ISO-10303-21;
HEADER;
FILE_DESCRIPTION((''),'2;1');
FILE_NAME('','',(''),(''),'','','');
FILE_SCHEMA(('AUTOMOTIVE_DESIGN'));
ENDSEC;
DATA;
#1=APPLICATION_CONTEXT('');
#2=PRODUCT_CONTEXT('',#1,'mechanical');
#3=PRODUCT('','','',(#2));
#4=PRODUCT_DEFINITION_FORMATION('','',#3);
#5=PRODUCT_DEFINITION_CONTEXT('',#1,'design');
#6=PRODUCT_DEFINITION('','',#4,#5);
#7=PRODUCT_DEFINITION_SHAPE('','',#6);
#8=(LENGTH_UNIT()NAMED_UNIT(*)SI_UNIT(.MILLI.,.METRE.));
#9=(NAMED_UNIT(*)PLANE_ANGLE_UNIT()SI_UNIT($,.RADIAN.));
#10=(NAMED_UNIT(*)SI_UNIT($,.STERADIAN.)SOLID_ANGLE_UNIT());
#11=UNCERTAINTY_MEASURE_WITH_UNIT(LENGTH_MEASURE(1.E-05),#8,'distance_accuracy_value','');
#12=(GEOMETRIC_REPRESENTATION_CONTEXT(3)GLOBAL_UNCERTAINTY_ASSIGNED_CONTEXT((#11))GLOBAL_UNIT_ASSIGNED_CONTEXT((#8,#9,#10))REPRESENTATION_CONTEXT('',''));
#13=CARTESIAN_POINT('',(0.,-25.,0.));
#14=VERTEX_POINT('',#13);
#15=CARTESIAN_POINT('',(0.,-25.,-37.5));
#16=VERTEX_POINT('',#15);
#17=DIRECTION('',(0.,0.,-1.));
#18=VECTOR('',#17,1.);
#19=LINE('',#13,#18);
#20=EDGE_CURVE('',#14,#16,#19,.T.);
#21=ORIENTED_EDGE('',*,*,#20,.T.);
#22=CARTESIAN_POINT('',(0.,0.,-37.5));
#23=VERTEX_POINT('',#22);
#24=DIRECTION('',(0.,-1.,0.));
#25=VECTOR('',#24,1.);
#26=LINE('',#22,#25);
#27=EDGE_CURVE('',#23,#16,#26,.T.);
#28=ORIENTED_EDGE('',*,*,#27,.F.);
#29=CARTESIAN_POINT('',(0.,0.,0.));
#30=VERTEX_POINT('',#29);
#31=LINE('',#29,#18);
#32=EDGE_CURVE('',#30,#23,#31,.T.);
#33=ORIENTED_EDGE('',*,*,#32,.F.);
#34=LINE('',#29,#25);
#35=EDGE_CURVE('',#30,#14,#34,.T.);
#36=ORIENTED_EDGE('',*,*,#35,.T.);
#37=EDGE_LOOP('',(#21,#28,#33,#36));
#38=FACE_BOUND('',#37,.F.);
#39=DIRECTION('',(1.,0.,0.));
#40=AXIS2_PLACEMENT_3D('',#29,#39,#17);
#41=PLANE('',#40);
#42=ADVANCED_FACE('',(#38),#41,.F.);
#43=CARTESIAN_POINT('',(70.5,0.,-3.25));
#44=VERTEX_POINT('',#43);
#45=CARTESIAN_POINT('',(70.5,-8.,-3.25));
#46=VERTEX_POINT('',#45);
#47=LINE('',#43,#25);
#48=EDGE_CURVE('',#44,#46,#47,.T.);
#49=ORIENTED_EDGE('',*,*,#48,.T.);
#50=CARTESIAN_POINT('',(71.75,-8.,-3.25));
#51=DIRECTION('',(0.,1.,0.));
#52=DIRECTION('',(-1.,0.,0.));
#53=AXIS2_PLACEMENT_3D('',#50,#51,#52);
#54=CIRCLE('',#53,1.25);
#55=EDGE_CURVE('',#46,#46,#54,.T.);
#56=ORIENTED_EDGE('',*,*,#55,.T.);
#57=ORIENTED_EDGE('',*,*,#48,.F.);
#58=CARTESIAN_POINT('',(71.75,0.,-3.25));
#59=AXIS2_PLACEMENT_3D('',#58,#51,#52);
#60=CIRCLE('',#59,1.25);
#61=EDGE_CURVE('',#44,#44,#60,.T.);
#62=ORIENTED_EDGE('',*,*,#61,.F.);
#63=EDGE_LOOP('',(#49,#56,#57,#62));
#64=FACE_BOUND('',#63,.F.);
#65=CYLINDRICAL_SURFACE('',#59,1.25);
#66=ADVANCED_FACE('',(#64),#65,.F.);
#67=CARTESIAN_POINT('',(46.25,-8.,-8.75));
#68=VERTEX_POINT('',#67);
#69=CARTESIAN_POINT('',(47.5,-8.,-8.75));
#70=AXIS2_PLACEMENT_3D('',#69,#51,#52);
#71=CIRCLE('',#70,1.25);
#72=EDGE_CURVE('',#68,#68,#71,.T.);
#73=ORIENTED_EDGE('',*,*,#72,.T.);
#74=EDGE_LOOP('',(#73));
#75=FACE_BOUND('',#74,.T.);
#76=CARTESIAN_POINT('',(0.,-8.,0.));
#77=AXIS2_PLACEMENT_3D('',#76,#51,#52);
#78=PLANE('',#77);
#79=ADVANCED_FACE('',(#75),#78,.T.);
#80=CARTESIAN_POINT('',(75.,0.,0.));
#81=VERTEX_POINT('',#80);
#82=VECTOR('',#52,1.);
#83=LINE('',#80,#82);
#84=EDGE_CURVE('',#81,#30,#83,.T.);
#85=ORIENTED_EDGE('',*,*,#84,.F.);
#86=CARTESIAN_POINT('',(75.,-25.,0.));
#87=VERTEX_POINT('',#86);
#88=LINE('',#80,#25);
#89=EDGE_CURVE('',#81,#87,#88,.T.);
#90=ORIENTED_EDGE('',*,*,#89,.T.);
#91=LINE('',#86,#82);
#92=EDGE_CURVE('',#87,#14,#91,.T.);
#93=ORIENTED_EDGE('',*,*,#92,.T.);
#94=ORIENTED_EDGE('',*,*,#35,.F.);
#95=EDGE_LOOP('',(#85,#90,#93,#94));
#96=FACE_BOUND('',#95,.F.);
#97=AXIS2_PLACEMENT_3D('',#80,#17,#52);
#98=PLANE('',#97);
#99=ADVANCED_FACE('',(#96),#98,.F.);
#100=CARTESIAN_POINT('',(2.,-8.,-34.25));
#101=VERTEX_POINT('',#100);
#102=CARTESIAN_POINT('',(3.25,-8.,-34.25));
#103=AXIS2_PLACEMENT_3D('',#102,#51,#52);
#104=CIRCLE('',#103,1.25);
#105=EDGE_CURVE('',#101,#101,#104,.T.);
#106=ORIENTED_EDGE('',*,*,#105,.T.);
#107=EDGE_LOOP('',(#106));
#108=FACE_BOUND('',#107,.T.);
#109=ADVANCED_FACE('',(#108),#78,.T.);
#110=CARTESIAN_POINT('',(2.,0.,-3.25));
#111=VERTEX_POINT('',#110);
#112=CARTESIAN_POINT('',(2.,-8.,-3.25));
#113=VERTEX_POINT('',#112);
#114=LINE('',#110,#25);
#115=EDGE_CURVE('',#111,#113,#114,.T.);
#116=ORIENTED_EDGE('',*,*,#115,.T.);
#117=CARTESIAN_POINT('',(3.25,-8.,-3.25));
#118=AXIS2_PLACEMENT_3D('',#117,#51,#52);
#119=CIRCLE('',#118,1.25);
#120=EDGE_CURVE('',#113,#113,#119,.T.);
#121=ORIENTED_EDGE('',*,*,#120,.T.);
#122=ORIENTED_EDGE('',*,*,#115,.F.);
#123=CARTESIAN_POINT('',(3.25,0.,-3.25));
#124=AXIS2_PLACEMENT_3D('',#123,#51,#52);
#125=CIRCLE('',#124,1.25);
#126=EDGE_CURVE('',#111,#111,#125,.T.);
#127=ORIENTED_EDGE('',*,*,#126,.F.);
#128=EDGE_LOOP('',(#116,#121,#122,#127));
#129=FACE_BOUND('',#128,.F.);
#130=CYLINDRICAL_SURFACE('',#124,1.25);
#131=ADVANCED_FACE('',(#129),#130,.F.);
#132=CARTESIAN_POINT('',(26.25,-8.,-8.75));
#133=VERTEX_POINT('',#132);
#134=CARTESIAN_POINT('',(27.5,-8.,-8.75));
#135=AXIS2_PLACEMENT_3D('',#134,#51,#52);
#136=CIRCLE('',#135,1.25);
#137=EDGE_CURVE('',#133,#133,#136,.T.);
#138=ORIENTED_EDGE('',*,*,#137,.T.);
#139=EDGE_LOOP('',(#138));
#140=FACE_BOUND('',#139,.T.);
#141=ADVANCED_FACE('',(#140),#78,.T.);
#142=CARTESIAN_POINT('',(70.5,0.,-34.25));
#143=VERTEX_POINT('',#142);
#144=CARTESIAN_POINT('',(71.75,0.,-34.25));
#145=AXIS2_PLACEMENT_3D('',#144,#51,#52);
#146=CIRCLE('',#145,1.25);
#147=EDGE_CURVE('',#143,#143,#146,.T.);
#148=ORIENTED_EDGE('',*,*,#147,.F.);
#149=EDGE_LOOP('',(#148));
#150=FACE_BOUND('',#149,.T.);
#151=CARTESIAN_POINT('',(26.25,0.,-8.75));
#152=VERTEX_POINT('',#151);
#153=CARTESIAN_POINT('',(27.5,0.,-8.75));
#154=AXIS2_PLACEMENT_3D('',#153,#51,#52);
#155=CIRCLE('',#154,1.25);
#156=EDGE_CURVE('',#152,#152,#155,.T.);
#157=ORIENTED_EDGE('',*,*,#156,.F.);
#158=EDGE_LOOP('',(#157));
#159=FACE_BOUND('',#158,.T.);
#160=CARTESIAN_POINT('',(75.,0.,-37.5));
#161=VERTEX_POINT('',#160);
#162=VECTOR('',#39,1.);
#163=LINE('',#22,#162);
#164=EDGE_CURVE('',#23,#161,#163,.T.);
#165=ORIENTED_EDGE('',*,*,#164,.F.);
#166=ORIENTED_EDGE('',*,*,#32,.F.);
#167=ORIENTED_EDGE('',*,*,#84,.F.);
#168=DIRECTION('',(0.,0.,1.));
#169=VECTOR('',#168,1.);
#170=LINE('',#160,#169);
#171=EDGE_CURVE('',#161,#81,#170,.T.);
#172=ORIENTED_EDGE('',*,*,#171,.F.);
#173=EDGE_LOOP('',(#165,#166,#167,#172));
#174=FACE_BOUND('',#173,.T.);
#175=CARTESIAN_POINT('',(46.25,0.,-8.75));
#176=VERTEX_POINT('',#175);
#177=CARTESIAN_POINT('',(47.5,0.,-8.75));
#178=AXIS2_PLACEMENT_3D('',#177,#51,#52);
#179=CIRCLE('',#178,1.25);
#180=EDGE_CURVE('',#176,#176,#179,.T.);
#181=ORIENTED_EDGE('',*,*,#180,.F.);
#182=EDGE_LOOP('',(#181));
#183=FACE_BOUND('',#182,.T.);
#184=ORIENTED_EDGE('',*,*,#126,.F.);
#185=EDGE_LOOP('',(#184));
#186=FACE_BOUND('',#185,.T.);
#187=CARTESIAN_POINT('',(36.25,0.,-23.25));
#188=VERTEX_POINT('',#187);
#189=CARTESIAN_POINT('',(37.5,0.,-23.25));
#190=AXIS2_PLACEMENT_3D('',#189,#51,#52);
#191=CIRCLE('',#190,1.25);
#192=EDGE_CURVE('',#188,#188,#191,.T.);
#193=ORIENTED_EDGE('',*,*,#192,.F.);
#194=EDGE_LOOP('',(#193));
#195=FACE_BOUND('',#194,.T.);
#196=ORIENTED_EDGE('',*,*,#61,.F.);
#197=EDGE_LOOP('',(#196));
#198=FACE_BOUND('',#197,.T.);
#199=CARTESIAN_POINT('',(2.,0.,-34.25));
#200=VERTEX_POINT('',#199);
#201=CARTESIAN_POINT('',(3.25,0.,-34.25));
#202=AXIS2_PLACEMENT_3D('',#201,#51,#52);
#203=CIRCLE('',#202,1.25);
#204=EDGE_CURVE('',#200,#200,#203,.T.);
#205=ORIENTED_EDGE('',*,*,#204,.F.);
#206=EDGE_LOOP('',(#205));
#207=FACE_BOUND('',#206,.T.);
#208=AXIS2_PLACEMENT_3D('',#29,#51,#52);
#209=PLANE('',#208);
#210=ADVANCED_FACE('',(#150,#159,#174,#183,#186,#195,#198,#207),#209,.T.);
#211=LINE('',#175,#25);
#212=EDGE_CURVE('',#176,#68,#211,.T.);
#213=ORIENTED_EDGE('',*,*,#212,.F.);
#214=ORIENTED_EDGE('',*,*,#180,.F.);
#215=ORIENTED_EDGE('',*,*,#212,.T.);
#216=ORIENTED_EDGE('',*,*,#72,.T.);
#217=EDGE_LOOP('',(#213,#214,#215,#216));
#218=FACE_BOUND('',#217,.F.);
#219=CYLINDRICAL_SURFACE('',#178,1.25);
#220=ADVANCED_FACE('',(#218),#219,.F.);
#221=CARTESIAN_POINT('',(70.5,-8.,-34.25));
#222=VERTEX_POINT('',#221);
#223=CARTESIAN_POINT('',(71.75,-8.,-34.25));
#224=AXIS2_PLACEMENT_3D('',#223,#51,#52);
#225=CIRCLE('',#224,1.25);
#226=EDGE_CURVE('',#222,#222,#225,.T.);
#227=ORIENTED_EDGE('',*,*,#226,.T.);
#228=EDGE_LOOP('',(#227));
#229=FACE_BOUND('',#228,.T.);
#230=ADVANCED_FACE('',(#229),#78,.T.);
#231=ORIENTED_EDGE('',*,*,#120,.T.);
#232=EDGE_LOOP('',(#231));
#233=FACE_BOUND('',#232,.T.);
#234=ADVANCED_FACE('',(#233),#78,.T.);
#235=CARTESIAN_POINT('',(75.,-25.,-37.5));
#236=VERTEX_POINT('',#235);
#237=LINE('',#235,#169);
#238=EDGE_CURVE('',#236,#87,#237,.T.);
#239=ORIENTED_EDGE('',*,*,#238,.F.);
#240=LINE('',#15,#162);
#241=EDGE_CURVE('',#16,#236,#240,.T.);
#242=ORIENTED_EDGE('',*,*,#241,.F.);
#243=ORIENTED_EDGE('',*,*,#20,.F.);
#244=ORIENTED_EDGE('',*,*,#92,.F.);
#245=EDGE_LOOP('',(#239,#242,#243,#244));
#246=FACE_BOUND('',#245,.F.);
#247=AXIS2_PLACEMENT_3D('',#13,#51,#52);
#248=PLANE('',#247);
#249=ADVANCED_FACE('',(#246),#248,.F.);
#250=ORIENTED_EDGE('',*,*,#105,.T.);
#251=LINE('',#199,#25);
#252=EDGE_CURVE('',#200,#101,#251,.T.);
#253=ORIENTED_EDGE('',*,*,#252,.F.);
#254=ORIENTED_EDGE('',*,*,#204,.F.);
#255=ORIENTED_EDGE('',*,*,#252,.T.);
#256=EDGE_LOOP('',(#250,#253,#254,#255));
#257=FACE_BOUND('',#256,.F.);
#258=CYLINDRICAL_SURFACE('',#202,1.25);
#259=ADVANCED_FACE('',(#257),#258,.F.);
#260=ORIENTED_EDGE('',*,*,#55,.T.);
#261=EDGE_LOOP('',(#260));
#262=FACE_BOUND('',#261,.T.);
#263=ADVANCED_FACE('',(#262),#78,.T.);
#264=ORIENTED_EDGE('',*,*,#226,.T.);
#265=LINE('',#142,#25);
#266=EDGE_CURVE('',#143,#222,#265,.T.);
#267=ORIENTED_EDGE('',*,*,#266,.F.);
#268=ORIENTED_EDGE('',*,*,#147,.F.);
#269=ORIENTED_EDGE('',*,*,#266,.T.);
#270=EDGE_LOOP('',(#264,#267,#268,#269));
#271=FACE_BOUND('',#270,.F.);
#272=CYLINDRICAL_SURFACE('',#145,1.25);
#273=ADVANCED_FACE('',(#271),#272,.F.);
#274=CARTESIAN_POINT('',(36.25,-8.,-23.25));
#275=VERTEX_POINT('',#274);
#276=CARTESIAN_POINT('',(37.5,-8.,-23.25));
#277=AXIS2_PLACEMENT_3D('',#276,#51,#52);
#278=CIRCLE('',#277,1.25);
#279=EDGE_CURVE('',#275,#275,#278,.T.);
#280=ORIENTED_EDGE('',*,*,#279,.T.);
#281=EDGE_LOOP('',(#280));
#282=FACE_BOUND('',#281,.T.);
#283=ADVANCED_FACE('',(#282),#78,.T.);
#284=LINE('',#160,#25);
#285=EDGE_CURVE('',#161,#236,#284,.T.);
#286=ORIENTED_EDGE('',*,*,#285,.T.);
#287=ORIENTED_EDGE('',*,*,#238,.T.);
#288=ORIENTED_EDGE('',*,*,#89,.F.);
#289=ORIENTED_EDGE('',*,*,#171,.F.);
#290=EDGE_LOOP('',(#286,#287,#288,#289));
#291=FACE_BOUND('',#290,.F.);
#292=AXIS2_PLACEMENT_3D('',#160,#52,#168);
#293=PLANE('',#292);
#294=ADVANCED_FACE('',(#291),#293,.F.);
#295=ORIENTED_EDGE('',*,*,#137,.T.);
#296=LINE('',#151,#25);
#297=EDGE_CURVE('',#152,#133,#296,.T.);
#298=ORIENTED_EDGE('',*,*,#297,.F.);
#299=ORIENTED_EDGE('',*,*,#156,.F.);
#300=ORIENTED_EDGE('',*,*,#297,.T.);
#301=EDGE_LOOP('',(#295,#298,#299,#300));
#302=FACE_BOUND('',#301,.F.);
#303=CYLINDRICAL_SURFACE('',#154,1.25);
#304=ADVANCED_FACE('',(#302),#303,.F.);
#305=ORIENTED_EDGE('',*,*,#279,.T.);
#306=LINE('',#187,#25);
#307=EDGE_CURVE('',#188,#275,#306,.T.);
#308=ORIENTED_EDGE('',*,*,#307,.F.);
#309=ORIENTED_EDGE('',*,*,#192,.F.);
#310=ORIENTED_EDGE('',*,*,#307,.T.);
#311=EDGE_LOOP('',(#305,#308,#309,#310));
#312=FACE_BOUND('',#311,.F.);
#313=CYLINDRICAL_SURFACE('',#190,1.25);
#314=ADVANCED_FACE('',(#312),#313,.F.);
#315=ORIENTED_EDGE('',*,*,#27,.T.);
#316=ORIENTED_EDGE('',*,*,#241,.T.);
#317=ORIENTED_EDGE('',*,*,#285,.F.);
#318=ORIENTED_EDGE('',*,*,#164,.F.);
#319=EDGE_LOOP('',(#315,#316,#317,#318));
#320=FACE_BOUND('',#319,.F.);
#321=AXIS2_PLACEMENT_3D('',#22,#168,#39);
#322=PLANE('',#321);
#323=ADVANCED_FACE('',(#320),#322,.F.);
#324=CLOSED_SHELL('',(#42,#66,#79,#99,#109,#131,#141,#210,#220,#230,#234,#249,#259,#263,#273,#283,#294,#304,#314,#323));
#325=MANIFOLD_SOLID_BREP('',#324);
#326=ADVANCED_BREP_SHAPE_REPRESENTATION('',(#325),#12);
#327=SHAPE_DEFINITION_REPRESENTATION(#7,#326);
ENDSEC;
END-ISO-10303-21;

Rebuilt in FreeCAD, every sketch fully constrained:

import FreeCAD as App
import Part
import Sketcher


def add_polygon(sketch, points):
    """Adds a closed chain of lines whose ends are joined by coincident constraints."""
    first, n = sketch.GeometryCount, len(points)
    for a, b in zip(points, points[1:] + points[:1]):
        sketch.addGeometry(Part.LineSegment(App.Vector(*a, 0), App.Vector(*b, 0)), False)
    for i in range(n):
        sketch.addConstraint(Sketcher.Constraint("Coincident", first + i, 2, first + (i + 1) % n, 1))

doc = App.newDocument("Part")
body = doc.addObject("PartDesign::Body", "Body")

sketch1 = doc.addObject("Sketcher::SketchObject", "Sketch")
body.addObject(sketch1)
sketch1.AttachmentSupport = (doc.XZ_Plane, [""])
sketch1.MapMode = "FlatFace"
add_polygon(sketch1, [(75, -37.5), (0, -37.5), (0, 0), (75, 0)])
sketch1.addConstraint([
    Sketcher.Constraint("Horizontal", 0),
    Sketcher.Constraint("Vertical", 1),
    Sketcher.Constraint("Horizontal", 2),
    Sketcher.Constraint("Vertical", 3),
    Sketcher.Constraint("Coincident", 1, 2, -1, 1),
    Sketcher.Constraint("DistanceX", 0, 2, 0, 1, 75.0),
    Sketcher.Constraint("DistanceY", 1, 1, 1, 2, 37.5),
])
pad1 = doc.addObject("PartDesign::Pad", "Pad")
body.addObject(pad1)
pad1.Profile = sketch1
pad1.Length = 25

sketch2 = doc.addObject("Sketcher::SketchObject", "Sketch001")
body.addObject(sketch2)
sketch2.AttachmentSupport = (doc.XZ_Plane, [""])
sketch2.MapMode = "FlatFace"
sketch2.addGeometry([
    Part.Circle(App.Vector(3.25, -34.25, 0), App.Vector(0, 0, 1), 1.25),
    Part.Circle(App.Vector(37.5, -23.25, 0), App.Vector(0, 0, 1), 1.25),
    Part.Circle(App.Vector(3.25, -3.25, 0), App.Vector(0, 0, 1), 1.25),
    Part.Circle(App.Vector(71.75, -3.25, 0), App.Vector(0, 0, 1), 1.25),
    Part.Circle(App.Vector(71.75, -34.25, 0), App.Vector(0, 0, 1), 1.25),
    Part.Circle(App.Vector(47.5, -8.75, 0), App.Vector(0, 0, 1), 1.25),
    Part.Circle(App.Vector(27.5, -8.75, 0), App.Vector(0, 0, 1), 1.25),
], False)
sketch2.addConstraint([
    Sketcher.Constraint("Equal", 0, 1),
    Sketcher.Constraint("Equal", 1, 2),
    Sketcher.Constraint("Equal", 2, 3),
    Sketcher.Constraint("Equal", 3, 4),
    Sketcher.Constraint("Equal", 4, 5),
    Sketcher.Constraint("Equal", 5, 6),
    Sketcher.Constraint("Horizontal", 2, 3, 3, 3),
    Sketcher.Constraint("Horizontal", 0, 3, 4, 3),
    Sketcher.Constraint("Horizontal", 5, 3, 6, 3),
    Sketcher.Constraint("Vertical", 0, 3, 2, 3),
    Sketcher.Constraint("Vertical", 3, 3, 4, 3),
    Sketcher.Constraint("Diameter", 0, 2.5),
    Sketcher.Constraint("DistanceY", 0, 3, 1, 3, 11.0),
    Sketcher.Constraint("DistanceY", 0, 3, 2, 3, 31.0),
    Sketcher.Constraint("DistanceX", 1, 3, 5, 3, 10.0),
    Sketcher.Constraint("DistanceX", 6, 3, 1, 3, 10.0),
    Sketcher.Constraint("DistanceX", -1, 1, 1, 3, 37.5),
    Sketcher.Constraint("DistanceX", 2, 3, 3, 3, 68.5),
    Sketcher.Constraint("DistanceY", 0, 3, -1, 1, 34.25),
    Sketcher.Constraint("DistanceX", 0, 3, 1, 3, 34.25),
    Sketcher.Constraint("DistanceY", 1, 3, 5, 3, 14.5),
])
pocket1 = doc.addObject("PartDesign::Pocket", "Pocket")
body.addObject(pocket1)
pocket1.Profile = sketch2
pocket1.Length = 8
pocket1.Reversed = True

doc.recompute()
